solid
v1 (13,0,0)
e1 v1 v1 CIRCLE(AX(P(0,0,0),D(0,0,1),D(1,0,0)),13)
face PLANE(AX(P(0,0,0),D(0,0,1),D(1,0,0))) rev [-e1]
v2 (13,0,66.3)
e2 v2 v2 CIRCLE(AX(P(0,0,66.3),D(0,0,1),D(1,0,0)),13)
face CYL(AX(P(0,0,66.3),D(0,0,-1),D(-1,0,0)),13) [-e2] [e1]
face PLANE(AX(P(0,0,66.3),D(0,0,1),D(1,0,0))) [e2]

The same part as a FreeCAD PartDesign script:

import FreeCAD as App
import Part
import Sketcher

V = App.Vector
Q = App.Units.Quantity

doc = App.newDocument("Part")
params = doc.addObject("Spreadsheet::Sheet", "Params")
for row, (alias, value) in enumerate([
    ("sketch1_diameter", "26 mm"),
    ("pad1_length", "66.3 mm"),
], start=1):
    params.set(f"A{row}", alias)
    params.set(f"B{row}", "=" + value)
    params.setAlias(f"B{row}", alias)

body = doc.addObject("PartDesign::Body", "Body")

# Sketch on XY plane
sketch1 = doc.addObject("Sketcher::SketchObject", "Sketch")
body.addObject(sketch1)
sketch1.AttachmentSupport = (doc.XY_Plane, [""])
sketch1.MapMode = "FlatFace"
sketch1.addGeometry(Part.Circle(V(0, 0, 0), V(0, 0, 1), 13), False)
sketch1.addConstraint(Sketcher.Constraint("Coincident", 0, 3, -1, 1))
sketch1.addConstraint(Sketcher.Constraint("Diameter", 0, Q("26 mm")))
sketch1.setExpression("Constraints[1]", "Params.sketch1_diameter")
pad1 = doc.addObject("PartDesign::Pad", "Pad")
body.addObject(pad1)
pad1.Profile = sketch1
pad1.setExpression("Length", "Params.pad1_length")

doc.recompute()
